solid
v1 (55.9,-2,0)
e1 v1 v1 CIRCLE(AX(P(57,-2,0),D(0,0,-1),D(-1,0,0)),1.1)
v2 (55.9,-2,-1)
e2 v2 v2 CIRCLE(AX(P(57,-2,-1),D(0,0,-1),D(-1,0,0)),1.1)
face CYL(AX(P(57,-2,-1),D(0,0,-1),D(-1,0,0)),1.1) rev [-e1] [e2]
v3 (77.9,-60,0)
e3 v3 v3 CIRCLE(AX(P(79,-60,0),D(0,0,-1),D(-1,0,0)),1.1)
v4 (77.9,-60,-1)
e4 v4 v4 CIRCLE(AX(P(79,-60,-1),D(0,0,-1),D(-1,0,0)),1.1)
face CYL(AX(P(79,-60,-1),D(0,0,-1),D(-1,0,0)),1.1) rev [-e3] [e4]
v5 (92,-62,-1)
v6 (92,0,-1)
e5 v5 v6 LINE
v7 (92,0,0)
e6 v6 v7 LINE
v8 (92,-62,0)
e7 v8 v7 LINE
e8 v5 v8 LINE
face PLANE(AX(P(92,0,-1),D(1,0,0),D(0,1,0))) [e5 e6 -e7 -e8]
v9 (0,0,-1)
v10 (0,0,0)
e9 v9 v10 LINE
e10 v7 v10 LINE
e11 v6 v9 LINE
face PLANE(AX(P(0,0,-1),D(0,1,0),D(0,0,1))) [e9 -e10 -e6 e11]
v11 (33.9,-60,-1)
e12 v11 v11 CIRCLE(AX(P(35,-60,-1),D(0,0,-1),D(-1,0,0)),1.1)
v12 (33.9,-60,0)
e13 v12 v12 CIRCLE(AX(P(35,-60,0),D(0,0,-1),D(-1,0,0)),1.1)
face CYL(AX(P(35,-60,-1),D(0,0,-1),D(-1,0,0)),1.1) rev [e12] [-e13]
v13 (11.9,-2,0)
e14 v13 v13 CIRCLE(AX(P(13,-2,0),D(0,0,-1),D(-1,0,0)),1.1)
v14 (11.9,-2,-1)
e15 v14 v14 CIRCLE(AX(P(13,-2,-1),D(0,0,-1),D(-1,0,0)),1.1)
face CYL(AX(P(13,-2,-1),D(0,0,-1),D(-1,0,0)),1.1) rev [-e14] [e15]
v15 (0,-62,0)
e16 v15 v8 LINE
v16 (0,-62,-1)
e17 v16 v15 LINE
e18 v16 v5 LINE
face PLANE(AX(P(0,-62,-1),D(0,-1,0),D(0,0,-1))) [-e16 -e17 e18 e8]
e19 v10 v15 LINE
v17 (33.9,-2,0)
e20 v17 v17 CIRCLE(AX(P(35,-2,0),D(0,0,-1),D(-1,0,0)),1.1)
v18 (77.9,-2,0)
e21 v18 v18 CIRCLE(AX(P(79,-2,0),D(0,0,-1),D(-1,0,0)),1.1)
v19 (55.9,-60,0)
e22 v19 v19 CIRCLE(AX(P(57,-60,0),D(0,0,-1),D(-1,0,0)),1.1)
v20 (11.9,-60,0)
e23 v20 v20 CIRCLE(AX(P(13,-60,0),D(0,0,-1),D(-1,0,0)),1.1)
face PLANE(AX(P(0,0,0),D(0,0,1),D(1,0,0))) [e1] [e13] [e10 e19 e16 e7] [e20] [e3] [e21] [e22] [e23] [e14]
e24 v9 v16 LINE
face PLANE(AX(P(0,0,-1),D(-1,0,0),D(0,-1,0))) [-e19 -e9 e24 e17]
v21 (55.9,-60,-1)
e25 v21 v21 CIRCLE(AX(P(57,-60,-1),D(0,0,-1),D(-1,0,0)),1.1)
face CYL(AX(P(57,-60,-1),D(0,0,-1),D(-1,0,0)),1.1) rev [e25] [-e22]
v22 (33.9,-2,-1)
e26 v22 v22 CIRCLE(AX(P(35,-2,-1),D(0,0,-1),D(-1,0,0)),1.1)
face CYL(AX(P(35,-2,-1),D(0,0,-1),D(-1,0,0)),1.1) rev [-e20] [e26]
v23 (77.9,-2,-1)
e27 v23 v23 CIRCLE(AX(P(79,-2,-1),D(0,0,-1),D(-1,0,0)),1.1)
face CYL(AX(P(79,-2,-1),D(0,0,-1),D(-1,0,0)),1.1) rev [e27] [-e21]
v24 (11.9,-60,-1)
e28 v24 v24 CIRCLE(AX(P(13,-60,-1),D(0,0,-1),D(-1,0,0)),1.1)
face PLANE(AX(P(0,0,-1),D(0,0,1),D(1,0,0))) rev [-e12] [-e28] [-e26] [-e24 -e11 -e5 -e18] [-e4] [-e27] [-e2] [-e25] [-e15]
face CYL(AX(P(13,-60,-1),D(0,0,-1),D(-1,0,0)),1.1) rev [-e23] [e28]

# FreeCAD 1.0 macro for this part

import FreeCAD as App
import Part
import Sketcher

V = App.Vector
Q = App.Units.Quantity


def add_polygon(sketch, points):
    """Adds a closed chain of lines whose ends are joined by coincident constraints."""
    first, n = sketch.GeometryCount, len(points)
    for a, b in zip(points, points[1:] + points[:1]):
        sketch.addGeometry(Part.LineSegment(App.Vector(*a, 0), App.Vector(*b, 0)), False)
    for i in range(n):
        sketch.addConstraint(Sketcher.Constraint("Coincident", first + i, 2, first + (i + 1) % n, 1))

doc = App.newDocument("Part")
params = doc.addObject("Spreadsheet::Sheet", "Params")
for row, (alias, value) in enumerate([
    ("sketch1_width", "92 mm"),
    ("sketch1_height", "62 mm"),
    ("pad1_length", "1 mm"),
    ("sketch2_diameter", "2.2 mm"),
    ("hole_diameter", "2.2 mm"),
], start=1):
    params.set(f"A{row}", alias)
    params.set(f"B{row}", "=" + value)
    params.setAlias(f"B{row}", alias)

body = doc.addObject("PartDesign::Body", "Body")

# Sketch on XY plane
sketch1 = body.newObject("Sketcher::SketchObject", "Sketch")
sketch1.AttachmentSupport = (doc.getObject("XY_Plane"), [""])
sketch1.MapMode = "FlatFace"
add_polygon(sketch1, [(0, 0), (0, -62), (92, -62), (92, 0)])  # lines 0-3
sketch1.addConstraint([
    Sketcher.Constraint("Vertical", 0),
    Sketcher.Constraint("Horizontal", 1),
    Sketcher.Constraint("Vertical", 2),
    Sketcher.Constraint("Horizontal", 3),
    Sketcher.Constraint("Coincident", 3, 2, -1, 1),
    Sketcher.Constraint("DistanceX", 1, 1, 1, 2, Q("92 mm")),
    Sketcher.Constraint("DistanceY", 0, 2, 0, 1, Q("62 mm")),
])
sketch1.setExpression("Constraints[9]", "Params.sketch1_width")
sketch1.setExpression("Constraints[10]", "Params.sketch1_height")
pad1 = body.newObject("PartDesign::Pad", "Pad")
pad1.Profile = sketch1
pad1.setExpression("Length", "Params.pad1_length")
pad1.Reversed = True

# Sketch on XY plane
sketch2 = body.newObject("Sketcher::SketchObject", "Sketch001")
sketch2.AttachmentSupport = (doc.getObject("XY_Plane"), [""])
sketch2.MapMode = "FlatFace"
sketch2.AttachmentOffset = App.Placement(V(0, 0, -1), App.Rotation())
sketch2.addGeometry([
    Part.Circle(V(79, -2, 0), V(0, 0, 1), 1.1),  # 0
    Part.Circle(V(57, -2, 0), V(0, 0, 1), 1.1),  # 1
    Part.Circle(V(35, -2, 0), V(0, 0, 1), 1.1),  # 2
    Part.Circle(V(13, -2, 0), V(0, 0, 1), 1.1),  # 3
    Part.Circle(V(13, -60, 0), V(0, 0, 1), 1.1),  # 4
    Part.Circle(V(35, -60, 0), V(0, 0, 1), 1.1),  # 5
    Part.Circle(V(57, -60, 0), V(0, 0, 1), 1.1),  # 6
    Part.Circle(V(79, -60, 0), V(0, 0, 1), 1.1),  # 7
], False)
sketch2.addConstraint([
    Sketcher.Constraint("Equal", 0, 1),
    Sketcher.Constraint("Equal", 1, 2),
    Sketcher.Constraint("Equal", 2, 3),
    Sketcher.Constraint("Equal", 3, 4),
    Sketcher.Constraint("Equal", 4, 5),
    Sketcher.Constraint("Equal", 5, 6),
    Sketcher.Constraint("Equal", 6, 7),
    Sketcher.Constraint("Horizontal", 0, 3, 1, 3),
    Sketcher.Constraint("Horizontal", 1, 3, 2, 3),
    Sketcher.Constraint("Horizontal", 2, 3, 3, 3),
    Sketcher.Constraint("Horizontal", 4, 3, 5, 3),
    Sketcher.Constraint("Horizontal", 5, 3, 6, 3),
    Sketcher.Constraint("Horizontal", 6, 3, 7, 3),
    Sketcher.Constraint("Vertical", 3, 3, 4, 3),
    Sketcher.Constraint("Vertical", 2, 3, 5, 3),
    Sketcher.Constraint("Vertical", 1, 3, 6, 3),
    Sketcher.Constraint("Vertical", 0, 3, 7, 3),
    Sketcher.Constraint("Diameter", 0, Q("2.2 mm")),
    Sketcher.Constraint("DistanceX", -1, 1, 0, 3, Q("79 mm")),
    Sketcher.Constraint("DistanceY", 0, 3, -1, 1, Q("2 mm")),
    Sketcher.Constraint("DistanceX", -1, 1, 1, 3, Q("57 mm")),
    Sketcher.Constraint("DistanceX", -1, 1, 2, 3, Q("35 mm")),
    Sketcher.Constraint("DistanceX", -1, 1, 3, 3, Q("13 mm")),
    Sketcher.Constraint("DistanceY", 4, 3, -1, 1, Q("60 mm")),
])
sketch2.setExpression("Constraints[17]", "Params.sketch2_diameter")
doc.recompute()
hole = body.newObject("PartDesign::Hole", "Hole")
hole.Profile = sketch2
hole.ThreadType = "None"
hole.setExpression("Diameter", "Params.hole_diameter")
hole.DepthType = "ThroughAll"
hole.Reversed = True

doc.recompute()
